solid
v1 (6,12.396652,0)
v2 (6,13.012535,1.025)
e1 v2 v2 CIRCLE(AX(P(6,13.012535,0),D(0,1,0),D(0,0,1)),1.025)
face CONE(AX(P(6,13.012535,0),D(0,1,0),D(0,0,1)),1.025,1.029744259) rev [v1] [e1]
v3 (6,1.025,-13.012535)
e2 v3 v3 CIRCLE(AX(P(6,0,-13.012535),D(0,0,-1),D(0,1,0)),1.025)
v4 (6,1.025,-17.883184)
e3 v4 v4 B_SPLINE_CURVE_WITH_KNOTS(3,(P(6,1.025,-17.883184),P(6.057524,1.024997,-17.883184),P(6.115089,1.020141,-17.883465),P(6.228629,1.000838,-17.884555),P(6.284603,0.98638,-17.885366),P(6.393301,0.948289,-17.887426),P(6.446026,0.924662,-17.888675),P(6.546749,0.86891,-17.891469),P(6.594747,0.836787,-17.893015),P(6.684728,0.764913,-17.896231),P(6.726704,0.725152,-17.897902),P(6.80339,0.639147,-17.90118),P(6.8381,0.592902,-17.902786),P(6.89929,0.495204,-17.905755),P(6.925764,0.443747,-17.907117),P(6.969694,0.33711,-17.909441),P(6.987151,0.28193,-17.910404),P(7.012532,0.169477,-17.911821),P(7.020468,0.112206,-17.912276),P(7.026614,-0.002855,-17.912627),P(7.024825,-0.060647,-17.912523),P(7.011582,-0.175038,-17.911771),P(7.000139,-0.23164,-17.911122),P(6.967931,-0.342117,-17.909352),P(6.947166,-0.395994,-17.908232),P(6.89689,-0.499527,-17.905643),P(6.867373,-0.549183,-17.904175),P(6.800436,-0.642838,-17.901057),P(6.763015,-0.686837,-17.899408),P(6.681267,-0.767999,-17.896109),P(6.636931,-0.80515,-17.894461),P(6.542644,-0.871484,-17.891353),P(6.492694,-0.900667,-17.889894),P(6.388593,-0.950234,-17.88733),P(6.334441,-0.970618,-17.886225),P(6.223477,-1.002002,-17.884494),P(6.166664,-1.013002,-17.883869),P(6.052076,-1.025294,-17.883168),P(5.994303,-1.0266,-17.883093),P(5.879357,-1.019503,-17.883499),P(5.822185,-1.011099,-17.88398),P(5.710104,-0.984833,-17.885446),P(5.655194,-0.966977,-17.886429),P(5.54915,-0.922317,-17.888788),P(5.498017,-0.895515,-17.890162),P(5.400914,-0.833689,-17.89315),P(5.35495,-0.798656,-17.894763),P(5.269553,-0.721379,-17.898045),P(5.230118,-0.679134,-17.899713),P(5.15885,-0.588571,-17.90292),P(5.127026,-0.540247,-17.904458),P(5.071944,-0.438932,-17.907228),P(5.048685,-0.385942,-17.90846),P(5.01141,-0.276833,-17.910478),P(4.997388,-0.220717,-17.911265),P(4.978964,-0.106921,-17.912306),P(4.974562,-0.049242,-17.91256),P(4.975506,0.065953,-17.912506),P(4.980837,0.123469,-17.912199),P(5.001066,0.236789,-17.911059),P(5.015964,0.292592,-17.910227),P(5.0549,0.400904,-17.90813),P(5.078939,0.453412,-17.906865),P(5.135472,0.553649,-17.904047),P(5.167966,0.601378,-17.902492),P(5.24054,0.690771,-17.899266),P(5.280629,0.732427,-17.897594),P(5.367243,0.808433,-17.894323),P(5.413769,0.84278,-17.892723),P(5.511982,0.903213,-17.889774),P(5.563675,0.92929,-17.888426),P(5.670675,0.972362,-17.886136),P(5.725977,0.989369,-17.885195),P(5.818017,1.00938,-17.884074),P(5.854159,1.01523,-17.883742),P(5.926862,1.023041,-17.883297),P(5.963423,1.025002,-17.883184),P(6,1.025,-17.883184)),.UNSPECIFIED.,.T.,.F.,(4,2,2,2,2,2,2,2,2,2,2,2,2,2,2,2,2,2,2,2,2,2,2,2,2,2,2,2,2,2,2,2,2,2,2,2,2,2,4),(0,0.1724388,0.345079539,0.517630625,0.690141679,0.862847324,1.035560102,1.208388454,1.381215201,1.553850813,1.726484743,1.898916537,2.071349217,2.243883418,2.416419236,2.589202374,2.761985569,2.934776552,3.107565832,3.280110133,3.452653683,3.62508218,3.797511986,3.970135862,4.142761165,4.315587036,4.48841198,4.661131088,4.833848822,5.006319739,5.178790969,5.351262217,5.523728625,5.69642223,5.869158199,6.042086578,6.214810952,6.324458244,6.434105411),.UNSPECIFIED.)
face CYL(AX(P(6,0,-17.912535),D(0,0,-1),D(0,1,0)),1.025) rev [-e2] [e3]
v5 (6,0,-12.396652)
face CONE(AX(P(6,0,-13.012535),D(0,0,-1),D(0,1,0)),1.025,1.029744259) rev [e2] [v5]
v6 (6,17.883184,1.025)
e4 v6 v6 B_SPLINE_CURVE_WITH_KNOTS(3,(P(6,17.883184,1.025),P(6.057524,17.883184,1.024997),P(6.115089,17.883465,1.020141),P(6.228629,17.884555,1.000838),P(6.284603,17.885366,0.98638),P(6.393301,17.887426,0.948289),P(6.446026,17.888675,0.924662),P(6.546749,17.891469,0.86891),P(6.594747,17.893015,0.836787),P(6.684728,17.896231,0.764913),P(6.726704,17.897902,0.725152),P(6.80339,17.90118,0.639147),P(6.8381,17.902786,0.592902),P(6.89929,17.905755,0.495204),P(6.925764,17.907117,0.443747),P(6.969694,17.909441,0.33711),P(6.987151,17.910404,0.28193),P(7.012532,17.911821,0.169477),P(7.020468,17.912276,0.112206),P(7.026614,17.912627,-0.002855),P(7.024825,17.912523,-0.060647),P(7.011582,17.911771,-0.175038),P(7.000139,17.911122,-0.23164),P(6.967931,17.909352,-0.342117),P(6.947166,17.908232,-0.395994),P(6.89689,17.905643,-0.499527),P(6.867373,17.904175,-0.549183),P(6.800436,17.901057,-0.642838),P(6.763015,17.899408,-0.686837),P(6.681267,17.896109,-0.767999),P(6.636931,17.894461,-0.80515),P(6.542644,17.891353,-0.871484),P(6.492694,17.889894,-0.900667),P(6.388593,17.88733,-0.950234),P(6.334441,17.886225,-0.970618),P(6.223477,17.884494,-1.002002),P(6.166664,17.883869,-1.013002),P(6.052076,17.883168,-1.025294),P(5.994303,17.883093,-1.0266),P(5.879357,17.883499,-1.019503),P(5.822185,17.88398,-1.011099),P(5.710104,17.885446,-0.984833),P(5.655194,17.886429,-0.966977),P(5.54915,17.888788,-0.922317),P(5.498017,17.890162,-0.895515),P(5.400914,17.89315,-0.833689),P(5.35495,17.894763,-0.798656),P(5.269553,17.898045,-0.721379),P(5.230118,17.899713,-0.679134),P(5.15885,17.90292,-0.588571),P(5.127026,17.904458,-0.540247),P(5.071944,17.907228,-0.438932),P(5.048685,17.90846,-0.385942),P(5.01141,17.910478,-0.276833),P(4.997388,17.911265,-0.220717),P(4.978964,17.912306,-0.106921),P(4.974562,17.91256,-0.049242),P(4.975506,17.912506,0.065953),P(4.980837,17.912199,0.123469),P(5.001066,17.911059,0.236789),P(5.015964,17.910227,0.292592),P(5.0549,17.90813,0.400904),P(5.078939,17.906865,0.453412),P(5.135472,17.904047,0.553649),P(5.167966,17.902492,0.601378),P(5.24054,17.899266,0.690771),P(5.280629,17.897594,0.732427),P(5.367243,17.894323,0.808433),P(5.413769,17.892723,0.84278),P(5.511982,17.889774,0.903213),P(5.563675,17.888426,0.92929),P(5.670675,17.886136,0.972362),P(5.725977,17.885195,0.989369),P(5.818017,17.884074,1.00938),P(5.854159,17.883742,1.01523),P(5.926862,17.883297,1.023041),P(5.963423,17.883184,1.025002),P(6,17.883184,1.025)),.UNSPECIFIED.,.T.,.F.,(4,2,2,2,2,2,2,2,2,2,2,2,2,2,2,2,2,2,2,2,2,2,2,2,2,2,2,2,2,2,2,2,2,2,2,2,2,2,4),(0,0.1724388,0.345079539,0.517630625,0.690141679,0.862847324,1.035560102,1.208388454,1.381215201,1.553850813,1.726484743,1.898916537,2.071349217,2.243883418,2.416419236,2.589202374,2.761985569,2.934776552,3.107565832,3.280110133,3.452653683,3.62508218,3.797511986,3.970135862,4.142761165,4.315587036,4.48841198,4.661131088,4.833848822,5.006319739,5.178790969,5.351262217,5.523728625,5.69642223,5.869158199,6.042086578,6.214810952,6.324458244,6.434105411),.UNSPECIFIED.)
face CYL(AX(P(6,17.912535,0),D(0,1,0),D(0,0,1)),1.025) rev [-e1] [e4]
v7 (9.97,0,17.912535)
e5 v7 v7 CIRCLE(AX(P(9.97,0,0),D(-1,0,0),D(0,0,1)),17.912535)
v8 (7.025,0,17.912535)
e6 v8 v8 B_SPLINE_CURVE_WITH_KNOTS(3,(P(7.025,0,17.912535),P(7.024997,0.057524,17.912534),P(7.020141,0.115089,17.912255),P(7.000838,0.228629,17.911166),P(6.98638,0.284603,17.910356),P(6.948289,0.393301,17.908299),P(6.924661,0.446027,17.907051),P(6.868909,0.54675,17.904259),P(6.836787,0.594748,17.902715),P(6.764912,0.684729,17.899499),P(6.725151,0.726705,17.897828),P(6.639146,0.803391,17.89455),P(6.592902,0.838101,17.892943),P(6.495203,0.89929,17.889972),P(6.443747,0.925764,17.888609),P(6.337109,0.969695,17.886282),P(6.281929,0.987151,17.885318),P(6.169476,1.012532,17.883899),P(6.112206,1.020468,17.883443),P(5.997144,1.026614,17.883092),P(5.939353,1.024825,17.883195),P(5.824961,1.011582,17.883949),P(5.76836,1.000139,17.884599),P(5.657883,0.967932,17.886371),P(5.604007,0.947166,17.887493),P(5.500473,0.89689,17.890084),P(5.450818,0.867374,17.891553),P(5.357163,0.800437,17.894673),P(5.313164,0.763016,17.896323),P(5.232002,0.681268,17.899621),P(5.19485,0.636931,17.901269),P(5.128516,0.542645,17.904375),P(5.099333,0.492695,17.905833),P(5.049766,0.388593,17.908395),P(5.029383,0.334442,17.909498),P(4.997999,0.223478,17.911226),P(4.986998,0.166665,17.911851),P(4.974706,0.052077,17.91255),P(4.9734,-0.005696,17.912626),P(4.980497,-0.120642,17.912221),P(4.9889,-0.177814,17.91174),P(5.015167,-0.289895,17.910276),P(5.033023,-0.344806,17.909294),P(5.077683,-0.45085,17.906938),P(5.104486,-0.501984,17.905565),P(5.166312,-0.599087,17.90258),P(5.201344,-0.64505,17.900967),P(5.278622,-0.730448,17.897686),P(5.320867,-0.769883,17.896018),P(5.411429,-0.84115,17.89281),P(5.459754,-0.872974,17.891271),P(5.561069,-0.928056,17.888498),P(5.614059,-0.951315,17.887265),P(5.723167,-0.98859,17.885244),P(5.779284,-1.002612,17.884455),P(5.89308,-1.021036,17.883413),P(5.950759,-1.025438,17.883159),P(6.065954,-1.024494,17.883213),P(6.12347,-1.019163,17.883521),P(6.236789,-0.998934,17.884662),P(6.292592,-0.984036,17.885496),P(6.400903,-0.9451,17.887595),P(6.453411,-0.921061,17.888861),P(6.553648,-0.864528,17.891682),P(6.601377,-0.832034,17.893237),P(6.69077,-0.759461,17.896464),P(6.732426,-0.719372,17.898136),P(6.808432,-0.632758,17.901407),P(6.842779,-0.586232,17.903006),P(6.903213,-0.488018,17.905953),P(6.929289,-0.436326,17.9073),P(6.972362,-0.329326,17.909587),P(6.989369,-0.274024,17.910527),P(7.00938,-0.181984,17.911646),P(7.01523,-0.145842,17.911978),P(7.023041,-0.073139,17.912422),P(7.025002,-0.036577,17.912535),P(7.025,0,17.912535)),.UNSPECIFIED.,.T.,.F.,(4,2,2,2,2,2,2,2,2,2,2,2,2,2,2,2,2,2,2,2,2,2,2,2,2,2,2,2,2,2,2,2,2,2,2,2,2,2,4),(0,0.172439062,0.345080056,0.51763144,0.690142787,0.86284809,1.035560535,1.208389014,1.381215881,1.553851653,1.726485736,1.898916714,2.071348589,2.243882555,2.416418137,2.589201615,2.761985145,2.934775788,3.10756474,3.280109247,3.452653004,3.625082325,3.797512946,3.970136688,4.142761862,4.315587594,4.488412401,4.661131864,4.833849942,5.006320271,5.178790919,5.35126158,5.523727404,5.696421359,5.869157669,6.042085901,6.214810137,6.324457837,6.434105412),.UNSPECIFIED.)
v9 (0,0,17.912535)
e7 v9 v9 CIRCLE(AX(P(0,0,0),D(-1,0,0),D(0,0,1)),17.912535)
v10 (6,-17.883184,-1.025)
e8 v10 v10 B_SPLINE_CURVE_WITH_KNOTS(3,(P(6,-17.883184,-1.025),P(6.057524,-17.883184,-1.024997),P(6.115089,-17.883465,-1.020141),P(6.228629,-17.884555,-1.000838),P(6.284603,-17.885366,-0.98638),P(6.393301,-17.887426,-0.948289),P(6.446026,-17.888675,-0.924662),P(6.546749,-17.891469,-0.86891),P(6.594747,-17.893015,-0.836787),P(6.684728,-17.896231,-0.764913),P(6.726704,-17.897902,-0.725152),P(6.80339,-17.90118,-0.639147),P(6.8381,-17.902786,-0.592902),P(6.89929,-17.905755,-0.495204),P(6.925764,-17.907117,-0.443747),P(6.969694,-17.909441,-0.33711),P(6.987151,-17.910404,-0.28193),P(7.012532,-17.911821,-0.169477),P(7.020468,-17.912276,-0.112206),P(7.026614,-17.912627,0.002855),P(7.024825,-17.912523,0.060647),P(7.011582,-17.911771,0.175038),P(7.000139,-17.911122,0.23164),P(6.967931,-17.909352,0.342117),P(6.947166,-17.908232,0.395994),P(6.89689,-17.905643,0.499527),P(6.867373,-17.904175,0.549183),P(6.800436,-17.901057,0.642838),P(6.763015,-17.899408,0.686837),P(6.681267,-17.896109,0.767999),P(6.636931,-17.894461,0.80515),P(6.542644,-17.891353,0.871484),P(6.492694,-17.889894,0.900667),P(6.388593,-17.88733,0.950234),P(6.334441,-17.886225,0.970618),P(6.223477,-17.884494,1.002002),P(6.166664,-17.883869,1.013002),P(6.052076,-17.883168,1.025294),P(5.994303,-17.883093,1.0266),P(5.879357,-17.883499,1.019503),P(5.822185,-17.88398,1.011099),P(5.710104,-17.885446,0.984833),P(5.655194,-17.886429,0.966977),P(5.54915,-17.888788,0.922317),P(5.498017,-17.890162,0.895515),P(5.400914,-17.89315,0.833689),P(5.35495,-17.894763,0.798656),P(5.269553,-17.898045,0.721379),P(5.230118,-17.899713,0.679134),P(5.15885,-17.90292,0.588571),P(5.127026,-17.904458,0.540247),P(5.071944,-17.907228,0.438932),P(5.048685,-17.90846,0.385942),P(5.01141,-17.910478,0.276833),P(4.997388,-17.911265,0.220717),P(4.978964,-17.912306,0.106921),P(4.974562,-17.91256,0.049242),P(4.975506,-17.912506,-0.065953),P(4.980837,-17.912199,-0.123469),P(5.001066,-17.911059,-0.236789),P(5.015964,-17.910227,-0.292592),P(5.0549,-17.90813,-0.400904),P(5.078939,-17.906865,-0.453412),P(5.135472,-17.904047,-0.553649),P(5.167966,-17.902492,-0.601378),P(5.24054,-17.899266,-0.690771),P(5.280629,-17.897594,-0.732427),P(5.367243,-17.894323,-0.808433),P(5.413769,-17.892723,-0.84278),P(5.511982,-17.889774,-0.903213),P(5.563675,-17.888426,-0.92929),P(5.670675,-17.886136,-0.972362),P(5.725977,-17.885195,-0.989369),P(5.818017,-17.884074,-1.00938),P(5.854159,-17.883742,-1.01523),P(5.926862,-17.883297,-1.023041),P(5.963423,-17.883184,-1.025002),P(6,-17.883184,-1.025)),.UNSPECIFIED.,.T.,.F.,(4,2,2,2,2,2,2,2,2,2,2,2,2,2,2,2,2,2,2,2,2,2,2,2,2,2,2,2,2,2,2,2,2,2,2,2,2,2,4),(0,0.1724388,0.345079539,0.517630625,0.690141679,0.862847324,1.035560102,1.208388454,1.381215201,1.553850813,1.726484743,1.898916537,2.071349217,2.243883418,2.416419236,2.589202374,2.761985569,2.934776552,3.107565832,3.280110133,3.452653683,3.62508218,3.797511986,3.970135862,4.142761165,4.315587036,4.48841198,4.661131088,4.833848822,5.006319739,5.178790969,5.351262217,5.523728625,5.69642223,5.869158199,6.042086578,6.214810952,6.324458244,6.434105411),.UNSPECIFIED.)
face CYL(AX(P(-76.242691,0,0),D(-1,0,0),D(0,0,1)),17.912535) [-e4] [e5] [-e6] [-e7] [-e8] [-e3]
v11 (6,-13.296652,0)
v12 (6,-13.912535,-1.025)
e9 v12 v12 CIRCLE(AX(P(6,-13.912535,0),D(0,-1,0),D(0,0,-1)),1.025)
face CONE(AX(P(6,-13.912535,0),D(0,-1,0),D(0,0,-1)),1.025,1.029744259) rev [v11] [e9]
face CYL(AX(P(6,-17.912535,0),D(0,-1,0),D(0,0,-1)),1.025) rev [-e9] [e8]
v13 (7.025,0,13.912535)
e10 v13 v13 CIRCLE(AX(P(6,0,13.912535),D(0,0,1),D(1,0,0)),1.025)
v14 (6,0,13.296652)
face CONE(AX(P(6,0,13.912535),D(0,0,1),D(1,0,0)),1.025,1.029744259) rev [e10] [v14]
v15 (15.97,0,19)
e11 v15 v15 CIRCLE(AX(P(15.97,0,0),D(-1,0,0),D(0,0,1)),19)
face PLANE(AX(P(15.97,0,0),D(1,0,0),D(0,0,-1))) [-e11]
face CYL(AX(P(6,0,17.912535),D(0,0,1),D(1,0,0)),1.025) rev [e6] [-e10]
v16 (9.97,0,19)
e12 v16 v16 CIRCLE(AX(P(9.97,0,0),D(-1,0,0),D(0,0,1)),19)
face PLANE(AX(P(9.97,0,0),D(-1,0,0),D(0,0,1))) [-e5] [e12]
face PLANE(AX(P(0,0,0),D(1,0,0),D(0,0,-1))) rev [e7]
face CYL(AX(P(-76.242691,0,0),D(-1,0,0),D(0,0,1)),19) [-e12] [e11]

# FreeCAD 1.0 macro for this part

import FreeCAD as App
import Part
import Sketcher

V = App.Vector
Q = App.Units.Quantity


def add_polygon(sketch, points):
    """Adds a closed chain of lines whose ends are joined by coincident constraints."""
    first, n = sketch.GeometryCount, len(points)
    for a, b in zip(points, points[1:] + points[:1]):
        sketch.addGeometry(Part.LineSegment(App.Vector(*a, 0), App.Vector(*b, 0)), False)
    for i in range(n):
        sketch.addConstraint(Sketcher.Constraint("Coincident", first + i, 2, first + (i + 1) % n, 1))

doc = App.newDocument("Part")
params = doc.addObject("Spreadsheet::Sheet", "Params")
for row, (alias, value) in enumerate([
    ("sketch1_width", "6 mm"),
    ("sketch1_height", "19 mm"),
    ("sketch1_width2", "15.97 mm"),
    ("revolution_angle", "360 deg"),
    ("sketch2_diameter", "2.05 mm"),
    ("hole_diameter", "2.05 mm"),
    ("hole_depth", "4 mm"),
    ("sketch3_diameter", "2.05 mm"),
    ("hole2_diameter", "2.05 mm"),
    ("hole2_depth", "4 mm"),
    ("sketch4_diameter", "2.05 mm"),
    ("hole3_diameter", "2.05 mm"),
    ("hole3_depth", "4 mm"),
    ("sketch5_diameter", "2.05 mm"),
    ("hole4_diameter", "2.05 mm"),
    ("hole4_depth", "4.9 mm"),
    ("sketch6_diameter", "2.05 mm"),
    ("hole5_diameter", "2.05 mm"),
    ("hole5_depth", "4.9 mm"),
], start=1):
    params.set(f"A{row}", alias)
    params.set(f"B{row}", "=" + value)
    params.setAlias(f"B{row}", alias)

body = doc.addObject("PartDesign::Body", "Body")

# Sketch on XY plane
sketch1 = body.newObject("Sketcher::SketchObject", "Sketch")
sketch1.AttachmentSupport = (doc.getObject("XY_Plane"), [""])
sketch1.MapMode = "FlatFace"
add_polygon(sketch1, [(0, 0), (16, 0), (16, 19), (10, 19), (10, 17.9), (0, 17.9)])  # lines 0-5
sketch1.addConstraint([
    Sketcher.Constraint("Horizontal", 0),
    Sketcher.Constraint("Vertical", 1),
    Sketcher.Constraint("Horizontal", 2),
    Sketcher.Constraint("Vertical", 3),
    Sketcher.Constraint("Horizontal", 4),
    Sketcher.Constraint("Vertical", 5),
    Sketcher.Constraint("Coincident", 5, 2, -1, 1),
    Sketcher.Constraint("DistanceX", 2, 2, 2, 1, Q("6 mm")),
    Sketcher.Constraint("DistanceY", 1, 1, 1, 2, Q("19 mm")),
    Sketcher.Constraint("DistanceX", 0, 1, 0, 2, Q("15.97 mm")),
    Sketcher.Constraint("DistanceY", 3, 2, 3, 1, Q("1.087465 mm")),
])
sketch1.setExpression("Constraints[13]", "Params.sketch1_width")
sketch1.setExpression("Constraints[14]", "Params.sketch1_height")
sketch1.setExpression("Constraints[15]", "Params.sketch1_width2")
revolution = body.newObject("PartDesign::Revolution", "Revolution")
revolution.Profile = sketch1
revolution.ReferenceAxis = (sketch1, ["H_Axis"])
revolution.setExpression("Angle", "Params.revolution_angle")

# Sketch on XZ plane
sketch2 = body.newObject("Sketcher::SketchObject", "Sketch001")
sketch2.AttachmentSupport = (doc.getObject("XZ_Plane"), [""])
sketch2.MapMode = "FlatFace"
sketch2.AttachmentOffset = App.Placement(V(0, 0, 17.912535), App.Rotation())
sketch2.addGeometry(Part.Circle(V(6, 0, 0), V(0, 0, 1), 1), False)
sketch2.addConstraint([
    Sketcher.Constraint("PointOnObject", 0, 3, -1),
    Sketcher.Constraint("Diameter", 0, Q("2.05 mm")),
    Sketcher.Constraint("DistanceX", -1, 1, 0, 3, Q("6 mm")),
])
sketch2.setExpression("Constraints[1]", "Params.sketch2_diameter")
doc.recompute()
hole = body.newObject("PartDesign::Hole", "Hole")
hole.Profile = sketch2
hole.ThreadType = "None"
hole.setExpression("Diameter", "Params.hole_diameter")
hole.DepthType = "Dimension"
hole.setExpression("Depth", "Params.hole_depth")
hole.DrillPoint = "Angled"
hole.DrillPointAngle = 118

# Sketch on XY plane
sketch3 = body.newObject("Sketcher::SketchObject", "Sketch002")
sketch3.AttachmentSupport = (doc.getObject("XY_Plane"), [""])
sketch3.MapMode = "FlatFace"
sketch3.AttachmentOffset = App.Placement(V(0, 0, 17.912535), App.Rotation())
sketch3.addGeometry(Part.Circle(V(6, 0, 0), V(0, 0, 1), 1), False)
sketch3.addConstraint([
    Sketcher.Constraint("PointOnObject", 0, 3, -1),
    Sketcher.Constraint("Diameter", 0, Q("2.05 mm")),
    Sketcher.Constraint("DistanceX", -1, 1, 0, 3, Q("6 mm")),
])
sketch3.setExpression("Constraints[1]", "Params.sketch3_diameter")
doc.recompute()
hole2 = body.newObject("PartDesign::Hole", "Hole001")
hole2.Profile = sketch3
hole2.ThreadType = "None"
hole2.setExpression("Diameter", "Params.hole2_diameter")
hole2.DepthType = "Dimension"
hole2.setExpression("Depth", "Params.hole2_depth")
hole2.DrillPoint = "Angled"
hole2.DrillPointAngle = 118

# Sketch on XZ plane
sketch4 = body.newObject("Sketcher::SketchObject", "Sketch003")
sketch4.AttachmentSupport = (doc.getObject("XZ_Plane"), [""])
sketch4.MapMode = "FlatFace"
sketch4.addGeometry(Part.Circle(V(-38.3, -8, 0), V(0, 0, 1), 1), False)
sketch4.addConstraint([
    Sketcher.Constraint("Diameter", 0, Q("2.05 mm")),
    Sketcher.Constraint("DistanceX", 0, 3, -1, 1, Q("38.298616 mm")),
    Sketcher.Constraint("DistanceY", 0, 3, -1, 1, Q("8.034884 mm")),
])
sketch4.setExpression("Constraints[0]", "Params.sketch4_diameter")
doc.recompute()
hole3 = body.newObject("PartDesign::Hole", "Hole002")
hole3.Profile = sketch4
hole3.ThreadType = "None"
hole3.setExpression("Diameter", "Params.hole3_diameter")
hole3.DepthType = "Dimension"
hole3.setExpression("Depth", "Params.hole3_depth")
hole3.DrillPoint = "Angled"
hole3.DrillPointAngle = 118

# Sketch on XY plane
sketch5 = body.newObject("Sketcher::SketchObject", "Sketch004")
sketch5.AttachmentSupport = (doc.getObject("XY_Plane"), [""])
sketch5.MapMode = "FlatFace"
sketch5.AttachmentOffset = App.Placement(V(0, 0, -17.912535), App.Rotation())
sketch5.addGeometry(Part.Circle(V(6, 0, 0), V(0, 0, 1), 1), False)
sketch5.addConstraint([
    Sketcher.Constraint("PointOnObject", 0, 3, -1),
    Sketcher.Constraint("Diameter", 0, Q("2.05 mm")),
    Sketcher.Constraint("DistanceX", -1, 1, 0, 3, Q("6 mm")),
])
sketch5.setExpression("Constraints[1]", "Params.sketch5_diameter")
doc.recompute()
hole4 = body.newObject("PartDesign::Hole", "Hole003")
hole4.Profile = sketch5
hole4.ThreadType = "None"
hole4.setExpression("Diameter", "Params.hole4_diameter")
hole4.DepthType = "Dimension"
hole4.setExpression("Depth", "Params.hole4_depth")
hole4.DrillPoint = "Angled"
hole4.DrillPointAngle = 118
hole4.Reversed = True

# Sketch on XZ plane
sketch6 = body.newObject("Sketcher::SketchObject", "Sketch005")
sketch6.AttachmentSupport = (doc.getObject("XZ_Plane"), [""])
sketch6.MapMode = "FlatFace"
sketch6.AttachmentOffset = App.Placement(V(0, 0, -17.912535), App.Rotation())
sketch6.addGeometry(Part.Circle(V(6, 0, 0), V(0, 0, 1), 1), False)
sketch6.addConstraint([
    Sketcher.Constraint("PointOnObject", 0, 3, -1),
    Sketcher.Constraint("Diameter", 0, Q("2.05 mm")),
    Sketcher.Constraint("DistanceX", -1, 1, 0, 3, Q("6 mm")),
])
sketch6.setExpression("Constraints[1]", "Params.sketch6_diameter")
doc.recompute()
hole5 = body.newObject("PartDesign::Hole", "Hole004")
hole5.Profile = sketch6
hole5.ThreadType = "None"
hole5.setExpression("Diameter", "Params.hole5_diameter")
hole5.DepthType = "Dimension"
hole5.setExpression("Depth", "Params.hole5_depth")
hole5.DrillPoint = "Angled"
hole5.DrillPointAngle = 118
hole5.Reversed = True

doc.recompute()
